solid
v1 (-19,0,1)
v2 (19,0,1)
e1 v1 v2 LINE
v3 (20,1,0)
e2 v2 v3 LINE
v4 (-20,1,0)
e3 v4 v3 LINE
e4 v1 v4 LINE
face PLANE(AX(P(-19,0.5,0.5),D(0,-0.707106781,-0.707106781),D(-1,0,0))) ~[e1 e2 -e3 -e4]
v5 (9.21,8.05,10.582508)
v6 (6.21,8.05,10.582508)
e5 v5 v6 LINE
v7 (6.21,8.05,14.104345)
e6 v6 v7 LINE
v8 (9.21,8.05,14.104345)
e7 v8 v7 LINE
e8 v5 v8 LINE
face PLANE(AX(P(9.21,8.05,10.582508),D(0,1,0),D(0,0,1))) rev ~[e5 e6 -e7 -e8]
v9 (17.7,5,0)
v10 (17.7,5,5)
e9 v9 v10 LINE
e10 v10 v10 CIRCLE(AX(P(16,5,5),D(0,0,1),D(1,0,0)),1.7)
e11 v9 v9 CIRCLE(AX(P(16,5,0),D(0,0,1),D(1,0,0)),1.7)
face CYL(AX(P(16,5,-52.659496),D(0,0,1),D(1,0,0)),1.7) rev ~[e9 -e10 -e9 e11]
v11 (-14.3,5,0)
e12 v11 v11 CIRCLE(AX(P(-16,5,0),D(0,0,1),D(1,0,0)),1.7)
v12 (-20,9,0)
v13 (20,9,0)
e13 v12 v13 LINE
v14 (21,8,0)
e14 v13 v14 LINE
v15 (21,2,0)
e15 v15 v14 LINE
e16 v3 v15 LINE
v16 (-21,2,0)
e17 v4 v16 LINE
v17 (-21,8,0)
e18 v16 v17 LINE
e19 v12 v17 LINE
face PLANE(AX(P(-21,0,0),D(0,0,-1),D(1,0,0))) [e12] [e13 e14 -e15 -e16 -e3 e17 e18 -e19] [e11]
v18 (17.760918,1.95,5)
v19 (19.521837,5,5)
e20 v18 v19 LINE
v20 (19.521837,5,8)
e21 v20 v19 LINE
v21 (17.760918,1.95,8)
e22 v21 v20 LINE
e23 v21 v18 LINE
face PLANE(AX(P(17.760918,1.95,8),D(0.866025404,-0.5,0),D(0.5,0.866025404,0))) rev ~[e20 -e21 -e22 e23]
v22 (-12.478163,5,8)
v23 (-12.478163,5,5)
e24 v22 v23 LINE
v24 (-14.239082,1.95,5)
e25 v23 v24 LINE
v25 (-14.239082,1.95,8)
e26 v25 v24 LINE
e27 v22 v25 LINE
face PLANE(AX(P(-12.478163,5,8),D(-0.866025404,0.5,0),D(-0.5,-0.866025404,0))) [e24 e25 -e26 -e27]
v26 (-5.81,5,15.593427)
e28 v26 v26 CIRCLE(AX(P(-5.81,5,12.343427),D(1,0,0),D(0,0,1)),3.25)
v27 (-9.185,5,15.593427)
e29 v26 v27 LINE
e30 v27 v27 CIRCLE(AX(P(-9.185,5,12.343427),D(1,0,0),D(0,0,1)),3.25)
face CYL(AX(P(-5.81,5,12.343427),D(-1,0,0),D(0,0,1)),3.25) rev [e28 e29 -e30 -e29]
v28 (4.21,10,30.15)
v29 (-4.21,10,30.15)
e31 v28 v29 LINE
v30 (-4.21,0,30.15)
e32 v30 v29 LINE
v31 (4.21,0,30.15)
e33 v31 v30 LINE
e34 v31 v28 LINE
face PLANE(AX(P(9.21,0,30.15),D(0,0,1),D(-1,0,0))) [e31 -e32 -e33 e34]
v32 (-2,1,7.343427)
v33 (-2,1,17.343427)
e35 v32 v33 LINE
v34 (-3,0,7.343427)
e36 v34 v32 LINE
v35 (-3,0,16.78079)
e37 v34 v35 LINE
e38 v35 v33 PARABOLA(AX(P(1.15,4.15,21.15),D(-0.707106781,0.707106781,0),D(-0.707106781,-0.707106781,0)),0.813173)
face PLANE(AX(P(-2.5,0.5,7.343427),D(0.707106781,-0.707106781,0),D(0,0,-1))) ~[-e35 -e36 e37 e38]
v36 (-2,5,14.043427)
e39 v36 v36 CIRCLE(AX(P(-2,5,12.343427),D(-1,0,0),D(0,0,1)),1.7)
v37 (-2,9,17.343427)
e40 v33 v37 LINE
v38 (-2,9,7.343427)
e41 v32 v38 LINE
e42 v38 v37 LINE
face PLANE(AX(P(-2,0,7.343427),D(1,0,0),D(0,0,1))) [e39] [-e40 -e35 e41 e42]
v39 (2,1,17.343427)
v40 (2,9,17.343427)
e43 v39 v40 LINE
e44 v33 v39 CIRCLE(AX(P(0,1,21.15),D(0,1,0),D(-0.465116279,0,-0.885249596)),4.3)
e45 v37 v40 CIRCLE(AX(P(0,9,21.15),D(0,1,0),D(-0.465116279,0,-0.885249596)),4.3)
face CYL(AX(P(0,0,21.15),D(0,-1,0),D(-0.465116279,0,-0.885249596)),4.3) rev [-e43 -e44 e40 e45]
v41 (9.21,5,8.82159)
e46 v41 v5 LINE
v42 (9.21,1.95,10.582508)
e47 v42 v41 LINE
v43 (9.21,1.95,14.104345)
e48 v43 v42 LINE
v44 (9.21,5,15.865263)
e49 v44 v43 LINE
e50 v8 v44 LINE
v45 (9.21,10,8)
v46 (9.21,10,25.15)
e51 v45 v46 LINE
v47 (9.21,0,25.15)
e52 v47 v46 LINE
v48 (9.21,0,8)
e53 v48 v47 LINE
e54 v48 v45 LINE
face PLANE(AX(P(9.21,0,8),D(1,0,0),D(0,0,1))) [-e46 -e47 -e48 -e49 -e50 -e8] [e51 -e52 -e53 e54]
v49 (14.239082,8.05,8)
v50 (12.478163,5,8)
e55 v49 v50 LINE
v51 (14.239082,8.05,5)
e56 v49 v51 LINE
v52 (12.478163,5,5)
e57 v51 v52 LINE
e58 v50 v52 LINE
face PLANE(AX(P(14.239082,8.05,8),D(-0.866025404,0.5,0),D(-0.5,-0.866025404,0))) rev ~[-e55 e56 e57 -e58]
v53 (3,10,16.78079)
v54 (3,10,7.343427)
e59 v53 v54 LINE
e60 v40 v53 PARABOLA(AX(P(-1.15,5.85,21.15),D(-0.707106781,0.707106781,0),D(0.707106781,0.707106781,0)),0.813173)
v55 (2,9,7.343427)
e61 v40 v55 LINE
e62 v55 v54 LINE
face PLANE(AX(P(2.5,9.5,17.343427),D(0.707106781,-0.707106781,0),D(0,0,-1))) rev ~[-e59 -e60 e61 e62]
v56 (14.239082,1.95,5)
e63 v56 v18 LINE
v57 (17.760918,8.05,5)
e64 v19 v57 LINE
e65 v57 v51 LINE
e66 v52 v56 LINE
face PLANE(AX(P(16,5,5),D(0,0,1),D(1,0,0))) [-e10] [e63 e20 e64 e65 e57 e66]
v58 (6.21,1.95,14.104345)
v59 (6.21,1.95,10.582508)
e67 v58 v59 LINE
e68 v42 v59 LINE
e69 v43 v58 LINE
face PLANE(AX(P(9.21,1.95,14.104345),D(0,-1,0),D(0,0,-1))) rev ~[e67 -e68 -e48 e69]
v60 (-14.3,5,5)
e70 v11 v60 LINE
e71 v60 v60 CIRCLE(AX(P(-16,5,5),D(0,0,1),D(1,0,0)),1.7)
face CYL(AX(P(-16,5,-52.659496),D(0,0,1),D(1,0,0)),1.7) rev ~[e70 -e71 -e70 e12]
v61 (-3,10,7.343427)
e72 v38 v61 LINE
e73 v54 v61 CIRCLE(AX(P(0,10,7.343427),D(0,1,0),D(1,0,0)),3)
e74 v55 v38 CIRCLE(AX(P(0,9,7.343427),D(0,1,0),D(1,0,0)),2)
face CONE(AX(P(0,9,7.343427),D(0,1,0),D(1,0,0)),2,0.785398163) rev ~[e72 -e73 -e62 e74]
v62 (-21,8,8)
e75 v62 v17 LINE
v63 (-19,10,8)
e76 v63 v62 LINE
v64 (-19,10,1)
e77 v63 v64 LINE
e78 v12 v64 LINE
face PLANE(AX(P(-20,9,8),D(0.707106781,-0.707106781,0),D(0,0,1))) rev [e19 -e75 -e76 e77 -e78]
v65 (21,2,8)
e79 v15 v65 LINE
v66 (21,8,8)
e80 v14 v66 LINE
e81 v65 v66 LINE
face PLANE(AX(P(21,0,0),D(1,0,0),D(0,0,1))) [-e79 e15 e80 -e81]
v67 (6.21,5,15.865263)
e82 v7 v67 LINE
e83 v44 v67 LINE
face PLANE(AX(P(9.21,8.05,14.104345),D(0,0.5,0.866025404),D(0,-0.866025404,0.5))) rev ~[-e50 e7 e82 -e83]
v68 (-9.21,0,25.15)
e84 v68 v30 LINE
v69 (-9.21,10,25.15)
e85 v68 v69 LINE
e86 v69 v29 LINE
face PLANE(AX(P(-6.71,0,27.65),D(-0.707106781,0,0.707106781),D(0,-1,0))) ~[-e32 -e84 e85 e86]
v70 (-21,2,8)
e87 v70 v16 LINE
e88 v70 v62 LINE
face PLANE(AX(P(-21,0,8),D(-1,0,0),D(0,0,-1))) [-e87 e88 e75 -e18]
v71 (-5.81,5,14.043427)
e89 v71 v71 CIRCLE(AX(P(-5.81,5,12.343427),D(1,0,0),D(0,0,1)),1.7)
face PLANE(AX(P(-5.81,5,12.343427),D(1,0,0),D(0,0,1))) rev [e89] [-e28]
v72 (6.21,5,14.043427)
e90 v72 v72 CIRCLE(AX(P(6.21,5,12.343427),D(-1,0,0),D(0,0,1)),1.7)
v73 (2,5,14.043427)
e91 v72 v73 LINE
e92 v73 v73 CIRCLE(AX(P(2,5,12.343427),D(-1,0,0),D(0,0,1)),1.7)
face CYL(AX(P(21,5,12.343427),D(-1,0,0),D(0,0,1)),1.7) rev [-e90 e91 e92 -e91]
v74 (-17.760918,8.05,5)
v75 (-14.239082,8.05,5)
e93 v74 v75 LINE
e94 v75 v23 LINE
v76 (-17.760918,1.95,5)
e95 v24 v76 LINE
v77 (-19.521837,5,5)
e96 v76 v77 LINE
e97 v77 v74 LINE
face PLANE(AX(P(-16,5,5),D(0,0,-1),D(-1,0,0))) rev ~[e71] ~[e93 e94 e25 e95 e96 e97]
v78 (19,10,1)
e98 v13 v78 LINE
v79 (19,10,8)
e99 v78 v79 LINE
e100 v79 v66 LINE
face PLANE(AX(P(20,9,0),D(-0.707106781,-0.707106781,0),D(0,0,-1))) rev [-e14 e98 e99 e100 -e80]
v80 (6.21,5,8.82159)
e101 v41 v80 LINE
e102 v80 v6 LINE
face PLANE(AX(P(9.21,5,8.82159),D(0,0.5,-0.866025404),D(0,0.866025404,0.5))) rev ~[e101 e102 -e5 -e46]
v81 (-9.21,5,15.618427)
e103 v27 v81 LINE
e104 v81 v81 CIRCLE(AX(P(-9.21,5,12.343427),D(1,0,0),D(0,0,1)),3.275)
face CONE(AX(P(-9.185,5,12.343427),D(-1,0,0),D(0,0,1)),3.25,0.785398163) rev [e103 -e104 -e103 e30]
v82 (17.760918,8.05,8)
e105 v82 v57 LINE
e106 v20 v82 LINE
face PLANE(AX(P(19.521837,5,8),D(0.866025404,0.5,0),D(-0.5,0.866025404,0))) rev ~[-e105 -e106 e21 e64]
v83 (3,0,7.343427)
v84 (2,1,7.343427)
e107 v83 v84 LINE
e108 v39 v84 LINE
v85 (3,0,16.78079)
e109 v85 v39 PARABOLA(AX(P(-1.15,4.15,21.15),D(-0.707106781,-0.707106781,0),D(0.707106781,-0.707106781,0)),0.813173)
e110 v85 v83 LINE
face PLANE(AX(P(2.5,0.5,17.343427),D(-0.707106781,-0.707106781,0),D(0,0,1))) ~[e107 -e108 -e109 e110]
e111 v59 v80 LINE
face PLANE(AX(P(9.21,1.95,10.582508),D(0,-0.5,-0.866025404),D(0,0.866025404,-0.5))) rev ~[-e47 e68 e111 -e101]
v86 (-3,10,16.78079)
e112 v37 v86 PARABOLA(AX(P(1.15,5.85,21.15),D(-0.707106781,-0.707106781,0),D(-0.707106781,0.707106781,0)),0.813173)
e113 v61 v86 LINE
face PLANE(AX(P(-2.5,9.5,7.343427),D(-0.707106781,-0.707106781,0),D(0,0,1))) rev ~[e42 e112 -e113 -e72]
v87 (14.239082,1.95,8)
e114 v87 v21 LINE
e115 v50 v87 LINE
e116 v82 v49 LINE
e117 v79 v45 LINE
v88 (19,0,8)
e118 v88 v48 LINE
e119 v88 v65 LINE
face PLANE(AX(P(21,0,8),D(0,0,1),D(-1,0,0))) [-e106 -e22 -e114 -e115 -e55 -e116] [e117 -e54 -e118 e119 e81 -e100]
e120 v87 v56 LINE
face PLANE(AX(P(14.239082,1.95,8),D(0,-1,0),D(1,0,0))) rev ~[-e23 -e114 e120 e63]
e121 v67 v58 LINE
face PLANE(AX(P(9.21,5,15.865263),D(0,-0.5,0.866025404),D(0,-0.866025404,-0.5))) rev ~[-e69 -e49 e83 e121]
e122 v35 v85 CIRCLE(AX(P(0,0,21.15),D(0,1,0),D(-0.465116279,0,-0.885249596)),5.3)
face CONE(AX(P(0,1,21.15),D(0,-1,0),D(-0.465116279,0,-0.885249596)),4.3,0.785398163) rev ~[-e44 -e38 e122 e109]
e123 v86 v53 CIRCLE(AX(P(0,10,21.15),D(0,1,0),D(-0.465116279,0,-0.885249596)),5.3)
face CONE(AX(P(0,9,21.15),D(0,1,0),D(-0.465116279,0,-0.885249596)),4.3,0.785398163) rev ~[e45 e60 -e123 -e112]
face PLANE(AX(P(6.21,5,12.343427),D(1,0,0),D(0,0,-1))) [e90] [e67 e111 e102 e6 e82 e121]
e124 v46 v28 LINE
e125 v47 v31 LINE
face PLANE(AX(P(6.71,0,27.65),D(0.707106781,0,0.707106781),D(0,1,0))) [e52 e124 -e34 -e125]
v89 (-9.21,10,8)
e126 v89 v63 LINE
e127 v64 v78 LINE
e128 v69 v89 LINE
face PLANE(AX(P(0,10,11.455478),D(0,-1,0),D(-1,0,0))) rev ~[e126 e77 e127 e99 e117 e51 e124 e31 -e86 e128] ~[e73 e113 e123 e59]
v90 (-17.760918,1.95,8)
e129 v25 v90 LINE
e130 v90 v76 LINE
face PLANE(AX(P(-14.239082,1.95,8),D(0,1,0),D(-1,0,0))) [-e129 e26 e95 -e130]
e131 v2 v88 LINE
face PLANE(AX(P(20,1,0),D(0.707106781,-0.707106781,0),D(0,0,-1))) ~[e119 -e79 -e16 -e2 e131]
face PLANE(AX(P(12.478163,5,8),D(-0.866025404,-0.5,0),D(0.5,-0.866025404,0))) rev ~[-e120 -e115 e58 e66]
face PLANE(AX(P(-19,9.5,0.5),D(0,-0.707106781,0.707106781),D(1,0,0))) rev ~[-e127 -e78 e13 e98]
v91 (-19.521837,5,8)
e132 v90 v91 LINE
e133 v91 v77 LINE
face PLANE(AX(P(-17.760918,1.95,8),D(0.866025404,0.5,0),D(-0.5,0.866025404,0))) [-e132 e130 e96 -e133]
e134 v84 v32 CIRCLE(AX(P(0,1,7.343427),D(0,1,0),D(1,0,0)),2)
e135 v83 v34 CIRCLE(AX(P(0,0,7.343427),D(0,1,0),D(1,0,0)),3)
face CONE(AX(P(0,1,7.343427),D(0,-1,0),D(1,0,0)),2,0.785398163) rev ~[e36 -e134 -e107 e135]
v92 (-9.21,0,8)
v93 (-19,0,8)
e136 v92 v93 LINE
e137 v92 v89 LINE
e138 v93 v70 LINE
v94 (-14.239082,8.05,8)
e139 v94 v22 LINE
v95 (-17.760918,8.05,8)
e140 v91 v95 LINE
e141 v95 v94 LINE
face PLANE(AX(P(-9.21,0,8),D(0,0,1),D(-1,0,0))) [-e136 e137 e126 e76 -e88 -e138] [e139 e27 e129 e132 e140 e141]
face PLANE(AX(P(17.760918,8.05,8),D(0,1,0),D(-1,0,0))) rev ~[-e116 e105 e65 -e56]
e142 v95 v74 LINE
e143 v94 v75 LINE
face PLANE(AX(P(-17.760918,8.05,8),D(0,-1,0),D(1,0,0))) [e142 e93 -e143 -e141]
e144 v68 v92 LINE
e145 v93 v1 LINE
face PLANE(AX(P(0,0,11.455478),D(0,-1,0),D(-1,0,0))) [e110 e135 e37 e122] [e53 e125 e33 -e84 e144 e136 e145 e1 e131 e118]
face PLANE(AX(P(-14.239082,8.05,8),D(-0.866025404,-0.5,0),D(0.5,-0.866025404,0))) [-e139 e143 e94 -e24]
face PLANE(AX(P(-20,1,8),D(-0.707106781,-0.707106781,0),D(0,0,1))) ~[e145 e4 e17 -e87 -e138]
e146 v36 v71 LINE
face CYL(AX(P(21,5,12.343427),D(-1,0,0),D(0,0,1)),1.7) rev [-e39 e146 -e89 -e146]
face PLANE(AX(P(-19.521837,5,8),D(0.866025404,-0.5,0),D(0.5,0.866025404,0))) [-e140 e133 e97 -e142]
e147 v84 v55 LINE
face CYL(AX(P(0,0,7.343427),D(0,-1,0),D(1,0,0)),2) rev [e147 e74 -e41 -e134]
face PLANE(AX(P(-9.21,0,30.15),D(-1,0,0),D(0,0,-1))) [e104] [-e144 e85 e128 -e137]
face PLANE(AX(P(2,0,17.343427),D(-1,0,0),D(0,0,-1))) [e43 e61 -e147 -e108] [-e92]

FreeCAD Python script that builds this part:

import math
import FreeCAD as App
import Part
import Sketcher
Q = App.Units.Quantity


def edges_at(feature, points):
    """Names of the edges that pass closest to the given points."""
    edges = feature.Shape.Edges
    near = lambda p: min(range(len(edges)), key=lambda i: edges[i].distToShape(Part.Vertex(*p))[0])
    return sorted({f"Edge{near(p) + 1}" for p in points})


def add_polygon(sketch, points):
    """Adds a closed chain of lines whose ends are joined by coincident constraints."""
    first, n = sketch.GeometryCount, len(points)
    for a, b in zip(points, points[1:] + points[:1]):
        sketch.addGeometry(Part.LineSegment(App.Vector(*a, 0), App.Vector(*b, 0)), False)
    for i in range(n):
        sketch.addConstraint(Sketcher.Constraint("Coincident", first + i, 2, first + (i + 1) % n, 1))

doc = App.newDocument("Part")
params = doc.addObject("Spreadsheet::Sheet", "Params")
for row, (alias, value) in enumerate([
    ("sketch1_radius", "2 mm"),
    ("sketch1_radius2", "4.3 mm"),
    ("sketch1_width", "42 mm"),
    ("sketch1_height", "8 mm"),
    ("sketch1_height2", "10 mm"),
    ("pad1_length", "10 mm"),
    ("chamfer_size", "5 mm"),
    ("chamfer2_size", "2 mm"),
    ("chamfer3_size", "1 mm"),
    ("pocket1_length", "3 mm"),
    ("sketch3_height", "1.7 mm"),
    ("sketch3_width", "30.21 mm"),
    ("sketch3_width2", "26.81 mm"),
    ("sketch3_height2", "1.55 mm"),
    ("groove_angle", "360 deg"),
    ("sketch4_diameter", "3.4 mm"),
    ("hole_diameter", "3.4 mm"),
    ("pocket2_length", "3 mm"),
], start=1):
    params.set(f"A{row}", alias)
    params.set(f"B{row}", "=" + value)
    params.setAlias(f"B{row}", alias)

body = doc.addObject("PartDesign::Body", "Body")

sketch1 = doc.addObject("Sketcher::SketchObject", "Sketch")
body.addObject(sketch1)
sketch1.AttachmentSupport = (doc.XZ_Plane, [""])
sketch1.MapMode = "FlatFace"
add_polygon(sketch1, [(21, 0), (-21, 0), (-21, 8), (-9.21, 8), (-9.21, 30.15), (9.21, 30.15), (9.21, 8), (21, 8)])
sketch1.addGeometry(Part.ArcOfCircle(Part.Circle(App.Vector(0, 7.343427, 0), App.Vector(0, 0, 1), 2), math.radians(180), math.radians(360)), False)
sketch1.addGeometry(Part.LineSegment(App.Vector(2, 7.343427, 0), App.Vector(2, 17.343427, 0)), False)
sketch1.addGeometry(Part.ArcOfCircle(Part.Circle(App.Vector(0, 21.15, 0), App.Vector(0, 0, 1), 4.3), math.radians(-62.282252), math.radians(242.282252)), False)
sketch1.addGeometry(Part.LineSegment(App.Vector(-2, 17.343427, 0), App.Vector(-2, 7.343427, 0)), False)
sketch1.addConstraint(Sketcher.Constraint("Tangent", 8, 2, 9, 1))
sketch1.addConstraint(Sketcher.Constraint("Coincident", 9, 2, 10, 1))
sketch1.addConstraint(Sketcher.Constraint("Coincident", 10, 2, 11, 1))
sketch1.addConstraint(Sketcher.Constraint("Tangent", 11, 2, 8, 1))
sketch1.addConstraint(Sketcher.Constraint("Horizontal", 0))
sketch1.addConstraint(Sketcher.Constraint("Vertical", 1))
sketch1.addConstraint(Sketcher.Constraint("Horizontal", 2))
sketch1.addConstraint(Sketcher.Constraint("Vertical", 3))
sketch1.addConstraint(Sketcher.Constraint("Horizontal", 4))
sketch1.addConstraint(Sketcher.Constraint("Vertical", 5))
sketch1.addConstraint(Sketcher.Constraint("Horizontal", 6))
sketch1.addConstraint(Sketcher.Constraint("Vertical", 7))
sketch1.addConstraint(Sketcher.Constraint("Vertical", 9))
sketch1.addConstraint(Sketcher.Constraint("Vertical", 11))
sketch1.addConstraint(Sketcher.Constraint("Symmetric", 0, 2, 7, 2, -1, 1))
sketch1.addConstraint(Sketcher.Constraint("Symmetric", 2, 2, 5, 2, -2))
sketch1.addConstraint(Sketcher.Constraint("Symmetric", 9, 2, 10, 2, -2))
sketch1.addConstraint(Sketcher.Constraint("Radius", 8, Q("2 mm")))
sketch1.addConstraint(Sketcher.Constraint("Radius", 10, Q("4.3 mm")))
sketch1.addConstraint(Sketcher.Constraint("DistanceX", 0, 2, 0, 1, Q("42 mm")))
sketch1.addConstraint(Sketcher.Constraint("DistanceY", 1, 1, 1, 2, Q("8 mm")))
sketch1.addConstraint(Sketcher.Constraint("DistanceY", 9, 1, 9, 2, Q("10 mm")))
sketch1.addConstraint(Sketcher.Constraint("DistanceY", 10, 3, 3, 2, Q("9 mm")))
sketch1.addConstraint(Sketcher.Constraint("DistanceX", 2, 1, 2, 2, Q("11.79 mm")))
sketch1.addConstraint(Sketcher.Constraint("DistanceY", 3, 1, 3, 2, Q("22.15 mm")))
sketch1.setExpression("Constraints[25]", "Params.sketch1_radius")
sketch1.setExpression("Constraints[26]", "Params.sketch1_radius2")
sketch1.setExpression("Constraints[27]", "Params.sketch1_width")
sketch1.setExpression("Constraints[28]", "Params.sketch1_height")
sketch1.setExpression("Constraints[29]", "Params.sketch1_height2")
pad1 = doc.addObject("PartDesign::Pad", "Pad")
body.addObject(pad1)
pad1.Profile = sketch1
pad1.setExpression("Length", "Params.pad1_length")
pad1.Reversed = True
doc.recompute()

chamfer = doc.addObject("PartDesign::Chamfer", "Chamfer")
body.addObject(chamfer)
chamfer.Base = (pad1, edges_at(pad1, [(9.21, 5, 30.15), (-9.21, 5, 30.15)]))
chamfer.setExpression("Size", "Params.chamfer_size")
doc.recompute()

chamfer2 = doc.addObject("PartDesign::Chamfer", "Chamfer001")
body.addObject(chamfer2)
chamfer2.Base = (chamfer, edges_at(chamfer, [
    (-21, 0, 4),
    (21, 10, 4),
    (-21, 10, 4),
    (21, 0, 4),
]))
chamfer2.setExpression("Size", "Params.chamfer2_size")
doc.recompute()

chamfer3 = doc.addObject("PartDesign::Chamfer", "Chamfer002")
body.addObject(chamfer3)
chamfer3.Base = (chamfer2, edges_at(chamfer2, [
    (0, 0, 5.343),
    (-2, 0, 12.343),
    (0, 0, 25.45),
    (2, 0, 12.343),
    (0, 10, 5.343),
    (-2, 10, 12.343),
    (0, 10, 25.45),
    (2, 10, 12.343),
    (0, 0, 0),
    (0, 10, 0),
]))
chamfer3.setExpression("Size", "Params.chamfer3_size")

sketch2 = doc.addObject("Sketcher::SketchObject", "Sketch001")
body.addObject(sketch2)
sketch2.AttachmentSupport = (doc.YZ_Plane, [""])
sketch2.MapMode = "FlatFace"
sketch2.AttachmentOffset = App.Placement(App.Vector(0, 0, 9.21), App.Rotation())
add_polygon(sketch2, [(1.95, 10.582508), (5, 8.82159), (8.05, 10.582508), (8.05, 14.104345), (5, 15.865263), (1.95, 14.104345)])
sketch2.addConstraint(Sketcher.Constraint("Vertical", 2))
sketch2.addConstraint(Sketcher.Constraint("Vertical", 5))
sketch2.addConstraint(Sketcher.Constraint("Parallel", 0, 3))
sketch2.addConstraint(Sketcher.Constraint("Parallel", 1, 4))
sketch2.addConstraint(Sketcher.Constraint("Horizontal", 2, 2, 4, 2))
sketch2.addConstraint(Sketcher.Constraint("Horizontal", 1, 2, 5, 2))
sketch2.addConstraint(Sketcher.Constraint("Vertical", 0, 2, 3, 2))
sketch2.addConstraint(Sketcher.Constraint("Angle", 0, Q("-30 deg")))
sketch2.addConstraint(Sketcher.Constraint("DistanceX", -1, 1, 0, 2, Q("5 mm")))
sketch2.addConstraint(Sketcher.Constraint("DistanceX", 4, 2, 2, 2, Q("6.1 mm")))
sketch2.addConstraint(Sketcher.Constraint("DistanceY", 2, 1, 2, 2, Q("3.521837 mm")))
sketch2.addConstraint(Sketcher.Constraint("DistanceY", -1, 1, 0, 2, Q("8.82159 mm")))
pocket1 = doc.addObject("PartDesign::Pocket", "Pocket")
body.addObject(pocket1)
pocket1.Profile = sketch2
pocket1.setExpression("Length", "Params.pocket1_length")

sketch3 = doc.addObject("Sketcher::SketchObject", "Sketch002")
body.addObject(sketch3)
sketch3.AttachmentSupport = (doc.XZ_Plane, [""])
sketch3.MapMode = "FlatFace"
sketch3.AttachmentOffset = App.Placement(App.Vector(0, 0, -5), App.Rotation())
add_polygon(sketch3, [(21, 12.343427), (-9.21, 12.343427), (-9.21, 15.618427), (-9.185, 15.593427), (-5.81, 15.593427), (-5.81, 14.043427), (21, 14.043427)])
sketch3.addGeometry(Part.LineSegment(App.Vector(-9.21, 12.343427, 0), App.Vector(21, 12.343427, 0)), True)
sketch3.addConstraint(Sketcher.Constraint("Horizontal", 0))
sketch3.addConstraint(Sketcher.Constraint("Vertical", 1))
sketch3.addConstraint(Sketcher.Constraint("Horizontal", 3))
sketch3.addConstraint(Sketcher.Constraint("Vertical", 4))
sketch3.addConstraint(Sketcher.Constraint("Horizontal", 5))
sketch3.addConstraint(Sketcher.Constraint("Vertical", 6))
sketch3.addConstraint(Sketcher.Constraint("Horizontal", 7))
sketch3.addConstraint(Sketcher.Constraint("Coincident", 7, 1, 0, 2))
sketch3.addConstraint(Sketcher.Constraint("Vertical", 5, 2, 7, 2))
sketch3.addConstraint(Sketcher.Constraint("Angle", 2, Q("-45 deg")))
sketch3.addConstraint(Sketcher.Constraint("DistanceY", 6, 2, 6, 1, Q("1.7 mm")))
sketch3.addConstraint(Sketcher.Constraint("DistanceX", -1, 1, 5, 2, Q("21 mm")))
sketch3.addConstraint(Sketcher.Constraint("DistanceX", 0, 2, 0, 1, Q("30.21 mm")))
sketch3.addConstraint(Sketcher.Constraint("DistanceX", 5, 1, 5, 2, Q("26.81 mm")))
sketch3.addConstraint(Sketcher.Constraint("DistanceY", 4, 2, 4, 1, Q("1.55 mm")))
sketch3.addConstraint(Sketcher.Constraint("DistanceX", 3, 1, 3, 2, Q("3.375 mm")))
sketch3.addConstraint(Sketcher.Constraint("DistanceY", -1, 1, 0, 2, Q("12.343427 mm")))
sketch3.setExpression("Constraints[17]", "Params.sketch3_height")
sketch3.setExpression("Constraints[19]", "Params.sketch3_width")
sketch3.setExpression("Constraints[20]", "Params.sketch3_width2")
sketch3.setExpression("Constraints[21]", "Params.sketch3_height2")
groove = doc.addObject("PartDesign::Groove", "Groove")
body.addObject(groove)
groove.Profile = sketch3
groove.ReferenceAxis = (sketch3, ["Axis0"])
groove.setExpression("Angle", "Params.groove_angle")

sketch4 = doc.addObject("Sketcher::SketchObject", "Sketch003")
body.addObject(sketch4)
sketch4.AttachmentSupport = (doc.XY_Plane, [""])
sketch4.MapMode = "FlatFace"
sketch4.addGeometry(Part.Circle(App.Vector(-16, 5, 0), App.Vector(0, 0, 1), 1.7), False)
sketch4.addGeometry(Part.Circle(App.Vector(16, 5, 0), App.Vector(0, 0, 1), 1.7), False)
sketch4.addConstraint(Sketcher.Constraint("Equal", 0, 1))
sketch4.addConstraint(Sketcher.Constraint("Symmetric", 0, 3, 1, 3, -2))
sketch4.addConstraint(Sketcher.Constraint("Diameter", 0, Q("3.4 mm")))
sketch4.addConstraint(Sketcher.Constraint("DistanceX", 0, 3, -1, 1, Q("16 mm")))
sketch4.addConstraint(Sketcher.Constraint("DistanceY", -1, 1, 0, 3, Q("5 mm")))
sketch4.setExpression("Constraints[2]", "Params.sketch4_diameter")
doc.recompute()
hole = doc.addObject("PartDesign::Hole", "Hole")
body.addObject(hole)
hole.Profile = sketch4
hole.ThreadType = "None"
hole.setExpression("Diameter", "Params.hole_diameter")
hole.DepthType = "ThroughAll"
hole.Reversed = True

sketch5 = doc.addObject("Sketcher::SketchObject", "Sketch004")
body.addObject(sketch5)
sketch5.AttachmentSupport = (doc.XY_Plane, [""])
sketch5.MapMode = "FlatFace"
sketch5.AttachmentOffset = App.Placement(App.Vector(0, 0, 8), App.Rotation())
add_polygon(sketch5, [(-17.760918, 1.95), (-19.521837, 5), (-17.760918, 8.05), (-14.239082, 8.05), (-12.478163, 5), (-14.239082, 1.95)])
add_polygon(sketch5, [(17.760918, 1.95), (14.239082, 1.95), (12.478163, 5), (14.239082, 8.05), (17.760918, 8.05), (19.521837, 5)])
sketch5.addConstraint(Sketcher.Constraint("Horizontal", 2))
sketch5.addConstraint(Sketcher.Constraint("Horizontal", 5))
sketch5.addConstraint(Sketcher.Constraint("Horizontal", 6))
sketch5.addConstraint(Sketcher.Constraint("Horizontal", 9))
sketch5.addConstraint(Sketcher.Constraint("Symmetric", 4, 2, 6, 2, -2))
sketch5.addConstraint(Sketcher.Constraint("Symmetric", 3, 2, 7, 2, -2))
sketch5.addConstraint(Sketcher.Constraint("Symmetric", 2, 2, 8, 2, -2))
sketch5.addConstraint(Sketcher.Constraint("Symmetric", 0, 2, 10, 2, -2))
sketch5.addConstraint(Sketcher.Constraint("Parallel", 0, 3))
sketch5.addConstraint(Sketcher.Constraint("Parallel", 1, 4))
sketch5.addConstraint(Sketcher.Constraint("Parallel", 3, 7))
sketch5.addConstraint(Sketcher.Constraint("Parallel", 7, 10))
sketch5.addConstraint(Sketcher.Constraint("Parallel", 8, 11))
sketch5.addConstraint(Sketcher.Constraint("Horizontal", 0, 2, 3, 2))
sketch5.addConstraint(Sketcher.Constraint("Vertical", 2, 2, 4, 2))
sketch5.addConstraint(Sketcher.Constraint("Angle", 0, Q("120 deg")))
sketch5.addConstraint(Sketcher.Constraint("DistanceY", -1, 1, 0, 2, Q("5 mm")))
sketch5.addConstraint(Sketcher.Constraint("DistanceX", 5, 2, 6, 2, Q("32 mm")))
sketch5.addConstraint(Sketcher.Constraint("DistanceY", 4, 2, 2, 2, Q("6.1 mm")))
sketch5.addConstraint(Sketcher.Constraint("DistanceX", 2, 1, 2, 2, Q("3.521837 mm")))
pocket2 = doc.addObject("PartDesign::Pocket", "Pocket001")
body.addObject(pocket2)
pocket2.Profile = sketch5
pocket2.setExpression("Length", "Params.pocket2_length")

doc.recompute()
